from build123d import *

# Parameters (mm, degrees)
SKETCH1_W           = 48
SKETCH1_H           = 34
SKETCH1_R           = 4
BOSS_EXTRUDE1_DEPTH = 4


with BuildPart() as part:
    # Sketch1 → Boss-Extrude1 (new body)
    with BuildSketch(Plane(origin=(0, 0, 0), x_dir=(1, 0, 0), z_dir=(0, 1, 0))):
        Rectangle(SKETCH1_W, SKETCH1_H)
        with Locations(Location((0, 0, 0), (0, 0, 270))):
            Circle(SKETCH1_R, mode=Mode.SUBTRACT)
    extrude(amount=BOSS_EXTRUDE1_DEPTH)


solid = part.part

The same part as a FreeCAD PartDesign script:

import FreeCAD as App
import Part
import Sketcher

doc = App.newDocument("Part")
body = doc.addObject("PartDesign::Body", "Body")

# Sketch on XZ plane
sketch1 = body.newObject("Sketcher::SketchObject", "Sketch")
sketch1.AttachmentSupport = (doc.getObject("XZ_Plane"), [""])
sketch1.MapMode = "FlatFace"
sketch1.addGeometry(Part.LineSegment(App.Vector(-24, -17, 0), App.Vector(-24, 17, 0)), False)
sketch1.addGeometry(Part.LineSegment(App.Vector(-24, 17, 0), App.Vector(24, 17, 0)), False)
sketch1.addGeometry(Part.LineSegment(App.Vector(24, 17, 0), App.Vector(24, -17, 0)), False)
sketch1.addGeometry(Part.LineSegment(App.Vector(24, -17, 0), App.Vector(-24, -17, 0)), False)
sketch1.addGeometry(Part.Circle(App.Vector(0, 0, 0), App.Vector(0, 0, 1), 4), False)
sketch1.addConstraint(Sketcher.Constraint("Coincident", 0, 2, 1, 1))
sketch1.addConstraint(Sketcher.Constraint("Coincident", 1, 2, 2, 1))
sketch1.addConstraint(Sketcher.Constraint("Coincident", 2, 2, 3, 1))
sketch1.addConstraint(Sketcher.Constraint("Coincident", 3, 2, 0, 1))
sketch1.addConstraint(Sketcher.Constraint("Vertical", 0))
sketch1.addConstraint(Sketcher.Constraint("Horizontal", 1))
sketch1.addConstraint(Sketcher.Constraint("Vertical", 2))
sketch1.addConstraint(Sketcher.Constraint("Horizontal", 3))
sketch1.addConstraint(Sketcher.Constraint("Coincident", 4, 3, -1, 1))
sketch1.addConstraint(Sketcher.Constraint("Symmetric", 0, 2, 2, 2, -1, 1))
sketch1.addConstraint(Sketcher.Constraint("Diameter", 4, 8.0))
sketch1.addConstraint(Sketcher.Constraint("DistanceX", 1, 1, 1, 2, 48.0))
sketch1.addConstraint(Sketcher.Constraint("DistanceY", 0, 1, 0, 2, 34.0))
pad1 = body.newObject("PartDesign::Pad", "Pad")
pad1.Profile = sketch1
pad1.Length = 4
pad1.Reversed = True

doc.recompute()
